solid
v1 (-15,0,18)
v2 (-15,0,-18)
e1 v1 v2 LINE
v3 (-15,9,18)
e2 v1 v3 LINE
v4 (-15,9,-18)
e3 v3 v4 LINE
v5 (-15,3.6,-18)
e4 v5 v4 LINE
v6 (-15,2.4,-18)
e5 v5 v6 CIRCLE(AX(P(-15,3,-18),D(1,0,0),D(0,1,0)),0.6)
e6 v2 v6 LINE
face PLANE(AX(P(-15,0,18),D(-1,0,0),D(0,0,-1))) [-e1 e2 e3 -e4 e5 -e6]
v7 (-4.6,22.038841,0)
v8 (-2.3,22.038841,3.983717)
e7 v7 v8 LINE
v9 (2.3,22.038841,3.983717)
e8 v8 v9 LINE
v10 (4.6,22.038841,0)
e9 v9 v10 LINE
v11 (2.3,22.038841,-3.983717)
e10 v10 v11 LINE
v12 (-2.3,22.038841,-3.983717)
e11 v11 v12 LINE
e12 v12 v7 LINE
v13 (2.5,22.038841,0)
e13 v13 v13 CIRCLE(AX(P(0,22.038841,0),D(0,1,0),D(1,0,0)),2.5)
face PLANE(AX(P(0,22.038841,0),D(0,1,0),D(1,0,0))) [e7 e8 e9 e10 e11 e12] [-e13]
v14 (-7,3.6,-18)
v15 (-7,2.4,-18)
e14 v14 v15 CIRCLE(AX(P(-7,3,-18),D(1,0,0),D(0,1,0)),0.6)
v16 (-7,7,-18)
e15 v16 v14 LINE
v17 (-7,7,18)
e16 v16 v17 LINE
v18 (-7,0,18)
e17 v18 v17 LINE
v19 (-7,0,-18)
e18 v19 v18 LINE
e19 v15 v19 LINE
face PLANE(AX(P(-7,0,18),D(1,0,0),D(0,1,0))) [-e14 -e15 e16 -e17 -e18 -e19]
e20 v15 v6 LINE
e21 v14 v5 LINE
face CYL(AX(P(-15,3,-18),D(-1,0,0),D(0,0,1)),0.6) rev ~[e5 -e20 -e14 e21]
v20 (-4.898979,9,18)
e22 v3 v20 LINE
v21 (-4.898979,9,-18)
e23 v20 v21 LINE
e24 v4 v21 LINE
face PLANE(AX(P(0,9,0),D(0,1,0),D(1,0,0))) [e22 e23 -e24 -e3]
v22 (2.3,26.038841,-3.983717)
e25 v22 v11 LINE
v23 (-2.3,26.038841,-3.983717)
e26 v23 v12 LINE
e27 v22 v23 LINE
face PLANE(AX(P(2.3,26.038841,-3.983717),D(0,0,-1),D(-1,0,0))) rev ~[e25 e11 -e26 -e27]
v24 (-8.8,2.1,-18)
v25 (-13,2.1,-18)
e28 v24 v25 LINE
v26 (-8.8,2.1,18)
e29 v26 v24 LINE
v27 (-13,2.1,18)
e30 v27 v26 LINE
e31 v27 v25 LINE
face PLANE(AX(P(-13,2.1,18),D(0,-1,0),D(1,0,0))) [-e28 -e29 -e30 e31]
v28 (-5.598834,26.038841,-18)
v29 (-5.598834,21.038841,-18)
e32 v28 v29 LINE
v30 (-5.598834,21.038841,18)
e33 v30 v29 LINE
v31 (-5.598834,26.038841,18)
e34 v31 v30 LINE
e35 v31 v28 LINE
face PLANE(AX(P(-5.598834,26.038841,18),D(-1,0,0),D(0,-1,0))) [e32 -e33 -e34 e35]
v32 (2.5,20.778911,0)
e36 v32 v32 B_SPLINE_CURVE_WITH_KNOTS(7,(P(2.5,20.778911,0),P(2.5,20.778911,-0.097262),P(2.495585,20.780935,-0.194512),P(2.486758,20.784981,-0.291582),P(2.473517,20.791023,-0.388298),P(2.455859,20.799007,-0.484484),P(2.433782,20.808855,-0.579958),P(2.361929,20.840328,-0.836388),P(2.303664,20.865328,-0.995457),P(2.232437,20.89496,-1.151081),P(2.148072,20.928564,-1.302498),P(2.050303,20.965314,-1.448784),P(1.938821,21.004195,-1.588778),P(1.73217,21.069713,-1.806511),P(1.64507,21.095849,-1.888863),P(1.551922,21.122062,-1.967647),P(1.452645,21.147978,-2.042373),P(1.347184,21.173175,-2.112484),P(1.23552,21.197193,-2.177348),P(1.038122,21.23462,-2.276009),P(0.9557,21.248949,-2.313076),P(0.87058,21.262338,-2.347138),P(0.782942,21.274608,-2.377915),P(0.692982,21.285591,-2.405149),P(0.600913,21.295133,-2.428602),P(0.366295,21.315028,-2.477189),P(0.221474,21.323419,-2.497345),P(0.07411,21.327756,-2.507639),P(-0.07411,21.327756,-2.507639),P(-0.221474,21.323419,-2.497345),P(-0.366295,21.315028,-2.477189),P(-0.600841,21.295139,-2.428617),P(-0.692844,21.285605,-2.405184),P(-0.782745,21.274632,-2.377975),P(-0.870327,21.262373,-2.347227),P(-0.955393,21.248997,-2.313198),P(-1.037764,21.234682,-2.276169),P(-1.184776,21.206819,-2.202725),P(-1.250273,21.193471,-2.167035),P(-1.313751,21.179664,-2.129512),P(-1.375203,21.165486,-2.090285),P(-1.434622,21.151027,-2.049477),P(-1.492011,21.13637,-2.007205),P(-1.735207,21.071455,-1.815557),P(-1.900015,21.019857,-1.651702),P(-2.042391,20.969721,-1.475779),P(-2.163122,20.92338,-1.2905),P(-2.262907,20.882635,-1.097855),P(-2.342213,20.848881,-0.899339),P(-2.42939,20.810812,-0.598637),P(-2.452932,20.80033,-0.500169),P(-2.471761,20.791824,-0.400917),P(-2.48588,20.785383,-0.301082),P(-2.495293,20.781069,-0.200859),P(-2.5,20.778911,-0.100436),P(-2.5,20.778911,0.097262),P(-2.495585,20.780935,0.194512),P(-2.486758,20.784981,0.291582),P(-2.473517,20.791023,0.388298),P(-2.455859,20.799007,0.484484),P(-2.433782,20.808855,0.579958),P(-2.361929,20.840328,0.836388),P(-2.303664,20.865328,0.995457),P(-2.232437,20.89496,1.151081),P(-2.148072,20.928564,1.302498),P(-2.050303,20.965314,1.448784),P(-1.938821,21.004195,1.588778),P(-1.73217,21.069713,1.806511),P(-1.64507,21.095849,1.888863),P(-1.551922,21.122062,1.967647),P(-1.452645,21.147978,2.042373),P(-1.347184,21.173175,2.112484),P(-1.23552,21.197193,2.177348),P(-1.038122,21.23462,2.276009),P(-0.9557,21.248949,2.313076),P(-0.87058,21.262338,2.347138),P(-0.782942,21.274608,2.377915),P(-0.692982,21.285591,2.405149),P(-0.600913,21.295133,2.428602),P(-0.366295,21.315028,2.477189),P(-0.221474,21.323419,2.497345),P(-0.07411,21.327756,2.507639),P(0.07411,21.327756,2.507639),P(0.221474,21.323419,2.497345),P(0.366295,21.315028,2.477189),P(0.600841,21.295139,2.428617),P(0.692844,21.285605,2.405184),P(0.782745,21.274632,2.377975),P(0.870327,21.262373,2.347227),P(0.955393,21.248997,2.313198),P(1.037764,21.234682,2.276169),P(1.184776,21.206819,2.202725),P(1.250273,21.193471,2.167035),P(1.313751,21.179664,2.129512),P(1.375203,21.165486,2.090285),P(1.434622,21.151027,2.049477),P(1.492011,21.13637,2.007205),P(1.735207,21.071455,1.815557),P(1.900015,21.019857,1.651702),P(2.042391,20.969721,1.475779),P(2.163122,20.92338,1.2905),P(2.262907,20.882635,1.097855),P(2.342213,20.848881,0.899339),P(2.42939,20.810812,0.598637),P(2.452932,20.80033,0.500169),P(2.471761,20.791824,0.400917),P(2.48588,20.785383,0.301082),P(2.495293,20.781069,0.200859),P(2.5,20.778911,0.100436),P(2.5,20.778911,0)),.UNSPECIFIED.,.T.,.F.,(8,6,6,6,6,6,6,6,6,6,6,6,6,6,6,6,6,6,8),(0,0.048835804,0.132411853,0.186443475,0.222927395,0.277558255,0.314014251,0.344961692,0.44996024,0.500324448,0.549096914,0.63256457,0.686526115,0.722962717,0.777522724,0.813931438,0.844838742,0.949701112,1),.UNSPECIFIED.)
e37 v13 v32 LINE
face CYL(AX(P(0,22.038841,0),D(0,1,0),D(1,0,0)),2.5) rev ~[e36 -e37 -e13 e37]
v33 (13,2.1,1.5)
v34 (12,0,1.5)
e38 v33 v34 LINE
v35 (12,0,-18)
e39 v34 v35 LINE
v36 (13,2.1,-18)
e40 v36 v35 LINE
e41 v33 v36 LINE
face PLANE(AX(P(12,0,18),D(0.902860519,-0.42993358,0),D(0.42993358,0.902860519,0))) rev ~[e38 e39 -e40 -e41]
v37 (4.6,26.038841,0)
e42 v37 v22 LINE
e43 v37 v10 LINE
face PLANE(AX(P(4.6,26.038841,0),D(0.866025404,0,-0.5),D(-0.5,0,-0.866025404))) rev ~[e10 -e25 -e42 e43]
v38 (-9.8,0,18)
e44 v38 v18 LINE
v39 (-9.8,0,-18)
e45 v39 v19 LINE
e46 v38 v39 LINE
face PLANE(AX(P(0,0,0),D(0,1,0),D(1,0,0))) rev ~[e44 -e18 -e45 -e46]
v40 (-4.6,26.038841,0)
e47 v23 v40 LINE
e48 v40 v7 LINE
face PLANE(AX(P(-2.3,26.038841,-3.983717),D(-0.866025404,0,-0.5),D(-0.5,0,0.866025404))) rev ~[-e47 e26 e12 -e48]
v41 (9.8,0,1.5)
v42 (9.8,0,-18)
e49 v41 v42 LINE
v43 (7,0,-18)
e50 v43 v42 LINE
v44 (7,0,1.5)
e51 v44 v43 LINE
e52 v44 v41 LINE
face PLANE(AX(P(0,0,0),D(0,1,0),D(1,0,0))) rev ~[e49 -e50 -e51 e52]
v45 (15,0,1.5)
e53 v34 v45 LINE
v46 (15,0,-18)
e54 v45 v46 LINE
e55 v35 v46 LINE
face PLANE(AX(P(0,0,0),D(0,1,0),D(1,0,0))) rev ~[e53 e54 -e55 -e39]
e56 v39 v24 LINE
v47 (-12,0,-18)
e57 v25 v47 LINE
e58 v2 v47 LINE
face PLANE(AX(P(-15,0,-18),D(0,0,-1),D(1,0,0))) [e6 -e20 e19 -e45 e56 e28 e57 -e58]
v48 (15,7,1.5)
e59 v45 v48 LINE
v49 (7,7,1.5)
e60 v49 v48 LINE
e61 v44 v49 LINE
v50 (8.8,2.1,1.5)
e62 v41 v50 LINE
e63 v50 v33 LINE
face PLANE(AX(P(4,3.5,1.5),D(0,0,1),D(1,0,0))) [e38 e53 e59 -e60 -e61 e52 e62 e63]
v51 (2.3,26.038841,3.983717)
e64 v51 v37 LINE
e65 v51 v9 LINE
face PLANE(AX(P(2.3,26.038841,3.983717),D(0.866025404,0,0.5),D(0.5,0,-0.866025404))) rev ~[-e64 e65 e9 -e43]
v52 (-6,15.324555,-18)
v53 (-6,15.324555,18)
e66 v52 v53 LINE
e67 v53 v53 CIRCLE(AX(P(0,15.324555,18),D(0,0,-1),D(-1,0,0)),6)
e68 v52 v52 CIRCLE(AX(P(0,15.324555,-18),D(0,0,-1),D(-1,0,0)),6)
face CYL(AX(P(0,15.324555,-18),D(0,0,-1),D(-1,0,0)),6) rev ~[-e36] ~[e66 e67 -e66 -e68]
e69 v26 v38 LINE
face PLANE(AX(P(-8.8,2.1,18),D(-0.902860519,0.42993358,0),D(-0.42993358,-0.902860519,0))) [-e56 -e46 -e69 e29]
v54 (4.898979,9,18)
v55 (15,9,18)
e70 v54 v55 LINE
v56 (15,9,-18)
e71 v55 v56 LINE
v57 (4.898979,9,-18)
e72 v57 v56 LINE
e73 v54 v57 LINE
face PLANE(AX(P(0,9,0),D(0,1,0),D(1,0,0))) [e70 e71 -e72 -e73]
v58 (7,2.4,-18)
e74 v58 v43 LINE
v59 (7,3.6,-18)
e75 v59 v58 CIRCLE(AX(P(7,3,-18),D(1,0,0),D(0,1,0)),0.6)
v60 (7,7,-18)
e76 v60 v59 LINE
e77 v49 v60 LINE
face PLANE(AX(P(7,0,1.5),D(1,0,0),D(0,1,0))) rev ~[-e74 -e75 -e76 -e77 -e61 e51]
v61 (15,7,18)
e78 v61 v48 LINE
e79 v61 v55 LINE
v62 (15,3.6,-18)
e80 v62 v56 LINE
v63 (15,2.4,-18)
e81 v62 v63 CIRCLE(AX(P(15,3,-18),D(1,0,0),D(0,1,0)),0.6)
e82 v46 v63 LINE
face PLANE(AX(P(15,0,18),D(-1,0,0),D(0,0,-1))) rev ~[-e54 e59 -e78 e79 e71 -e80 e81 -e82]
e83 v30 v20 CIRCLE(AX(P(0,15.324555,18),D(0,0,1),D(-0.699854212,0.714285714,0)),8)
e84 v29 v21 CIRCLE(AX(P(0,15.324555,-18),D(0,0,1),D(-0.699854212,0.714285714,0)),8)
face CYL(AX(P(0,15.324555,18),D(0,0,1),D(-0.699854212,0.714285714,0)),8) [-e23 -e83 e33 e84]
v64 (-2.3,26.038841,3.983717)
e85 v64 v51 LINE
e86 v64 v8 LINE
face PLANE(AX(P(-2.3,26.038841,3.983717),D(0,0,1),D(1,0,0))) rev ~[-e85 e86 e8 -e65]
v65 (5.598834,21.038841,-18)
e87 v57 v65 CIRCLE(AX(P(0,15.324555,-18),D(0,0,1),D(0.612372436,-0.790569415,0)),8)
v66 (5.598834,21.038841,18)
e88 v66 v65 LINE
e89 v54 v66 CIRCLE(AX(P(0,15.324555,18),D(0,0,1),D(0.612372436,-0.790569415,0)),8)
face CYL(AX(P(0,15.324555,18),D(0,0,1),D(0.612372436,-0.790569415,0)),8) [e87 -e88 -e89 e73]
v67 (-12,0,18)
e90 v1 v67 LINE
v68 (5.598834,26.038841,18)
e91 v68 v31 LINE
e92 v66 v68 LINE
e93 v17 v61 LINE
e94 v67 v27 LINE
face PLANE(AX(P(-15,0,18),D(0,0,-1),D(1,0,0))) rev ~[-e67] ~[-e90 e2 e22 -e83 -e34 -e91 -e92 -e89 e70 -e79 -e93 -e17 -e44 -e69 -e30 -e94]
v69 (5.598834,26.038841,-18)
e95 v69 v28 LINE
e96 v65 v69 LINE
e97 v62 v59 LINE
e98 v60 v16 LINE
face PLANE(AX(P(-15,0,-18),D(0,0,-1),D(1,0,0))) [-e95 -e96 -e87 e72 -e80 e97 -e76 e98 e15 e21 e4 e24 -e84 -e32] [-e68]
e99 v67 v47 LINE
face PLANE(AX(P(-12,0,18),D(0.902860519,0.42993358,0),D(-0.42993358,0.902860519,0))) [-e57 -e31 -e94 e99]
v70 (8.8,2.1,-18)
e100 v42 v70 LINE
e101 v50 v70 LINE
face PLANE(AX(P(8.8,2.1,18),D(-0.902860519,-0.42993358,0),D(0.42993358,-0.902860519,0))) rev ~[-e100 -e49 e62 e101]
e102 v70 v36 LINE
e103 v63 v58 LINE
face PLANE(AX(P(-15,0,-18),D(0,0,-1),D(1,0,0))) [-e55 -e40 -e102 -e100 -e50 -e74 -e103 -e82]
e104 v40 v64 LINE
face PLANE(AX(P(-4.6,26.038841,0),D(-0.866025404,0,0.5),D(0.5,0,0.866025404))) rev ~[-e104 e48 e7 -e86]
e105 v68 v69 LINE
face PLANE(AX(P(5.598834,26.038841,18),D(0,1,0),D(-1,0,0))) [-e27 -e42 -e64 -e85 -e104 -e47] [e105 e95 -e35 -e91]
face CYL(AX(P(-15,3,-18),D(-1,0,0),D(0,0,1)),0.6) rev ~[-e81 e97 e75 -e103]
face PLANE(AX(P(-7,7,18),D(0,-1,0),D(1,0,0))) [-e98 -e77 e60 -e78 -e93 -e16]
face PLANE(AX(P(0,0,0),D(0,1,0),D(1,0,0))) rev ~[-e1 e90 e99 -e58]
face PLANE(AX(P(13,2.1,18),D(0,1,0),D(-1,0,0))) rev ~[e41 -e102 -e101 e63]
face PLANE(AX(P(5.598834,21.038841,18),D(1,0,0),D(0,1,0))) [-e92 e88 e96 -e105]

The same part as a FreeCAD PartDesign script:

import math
import FreeCAD as App
import Part
import Sketcher
from FreeCAD import Vector
Q = App.Units.Quantity

doc = App.newDocument("Part")
body = doc.addObject("PartDesign::Body", "Body")

# Sketch on XZ plane
sketch1 = doc.addObject("Sketcher::SketchObject", "Sketch")
body.addObject(sketch1)
sketch1.AttachmentSupport = (doc.XZ_Plane, [""])
sketch1.MapMode = "FlatFace"
sketch1.addGeometry([
    Part.LineSegment(Vector(-15, -18, 0), Vector(-15, 18, 0)),
    Part.LineSegment(Vector(-15, 18, 0), Vector(15, 18, 0)),
    Part.LineSegment(Vector(15, 18, 0), Vector(15, -18, 0)),
    Part.LineSegment(Vector(15, -18, 0), Vector(-15, -18, 0)),
], False)
sketch1.addConstraint([
    Sketcher.Constraint("Coincident", 0, 2, 1, 1),
    Sketcher.Constraint("Coincident", 1, 2, 2, 1),
    Sketcher.Constraint("Coincident", 2, 2, 3, 1),
    Sketcher.Constraint("Coincident", 3, 2, 0, 1),
    Sketcher.Constraint("Vertical", 0),
    Sketcher.Constraint("Horizontal", 1),
    Sketcher.Constraint("Vertical", 2),
    Sketcher.Constraint("Horizontal", 3),
    Sketcher.Constraint("Symmetric", 0, 2, 2, 2, -1, 1),
    Sketcher.Constraint("DistanceX", 1, 1, 1, 2, 30.0),
    Sketcher.Constraint("DistanceY", 0, 1, 0, 2, 36.0),
])
pad1 = doc.addObject("PartDesign::Pad", "Pad")
body.addObject(pad1)
pad1.Profile = sketch1
pad1.Length = 9
pad1.Reversed = True

# Sketch on XY plane
sketch2 = doc.addObject("Sketcher::SketchObject", "Sketch001")
body.addObject(sketch2)
sketch2.AttachmentSupport = (doc.XY_Plane, [""])
sketch2.MapMode = "FlatFace"
sketch2.AttachmentOffset = App.Placement(Vector(0, 0, 18), App.Rotation())
sketch2.addGeometry([
    Part.LineSegment(Vector(-13, 2.1, 0), Vector(-12, 0, 0)),  # 0
    Part.LineSegment(Vector(-12, 0, 0), Vector(-9.8, 0, 0)),  # 1
    Part.LineSegment(Vector(-9.8, 0, 0), Vector(-8.8, 2.1, 0)),  # 2
    Part.LineSegment(Vector(-8.8, 2.1, 0), Vector(-13, 2.1, 0)),  # 3
    Part.LineSegment(Vector(12, 0, 0), Vector(13, 2.1, 0)),  # 4
    Part.LineSegment(Vector(13, 2.1, 0), Vector(8.8, 2.1, 0)),  # 5
    Part.LineSegment(Vector(8.8, 2.1, 0), Vector(9.8, 0, 0)),  # 6
    Part.LineSegment(Vector(9.8, 0, 0), Vector(12, 0, 0)),  # 7
], False)
sketch2.addConstraint([
    Sketcher.Constraint("Coincident", 0, 2, 1, 1),
    Sketcher.Constraint("Coincident", 1, 2, 2, 1),
    Sketcher.Constraint("Coincident", 2, 2, 3, 1),
    Sketcher.Constraint("Coincident", 3, 2, 0, 1),
    Sketcher.Constraint("Coincident", 4, 2, 5, 1),
    Sketcher.Constraint("Coincident", 5, 2, 6, 1),
    Sketcher.Constraint("Coincident", 6, 2, 7, 1),
    Sketcher.Constraint("Coincident", 7, 2, 4, 1),
    Sketcher.Constraint("Horizontal", 1),
    Sketcher.Constraint("Horizontal", 3),
    Sketcher.Constraint("Horizontal", 5),
    Sketcher.Constraint("Horizontal", 7),
    Sketcher.Constraint("Symmetric", 1, 2, 6, 2, -1, 1),
    Sketcher.Constraint("Symmetric", 3, 2, 4, 2, -2),
    Sketcher.Constraint("Symmetric", 0, 2, 7, 2, -2),
    Sketcher.Constraint("Parallel", 2, 4),
    Sketcher.Constraint("Parallel", 0, 6),
    Sketcher.Constraint("DistanceX", 1, 1, 1, 2, 2.2),
    Sketcher.Constraint("DistanceX", 3, 2, 3, 1, 4.2),
    Sketcher.Constraint("DistanceX", 0, 2, -1, 1, 12.0),
    Sketcher.Constraint("DistanceY", -1, 1, 2, 2, 2.1),
])
pocket1 = doc.addObject("PartDesign::Pocket", "Pocket")
body.addObject(pocket1)
pocket1.Profile = sketch2
pocket1.Type = "ThroughAll"

# Sketch on XY plane
sketch3 = doc.addObject("Sketcher::SketchObject", "Sketch002")
body.addObject(sketch3)
sketch3.AttachmentSupport = (doc.XY_Plane, [""])
sketch3.MapMode = "FlatFace"
sketch3.AttachmentOffset = App.Placement(Vector(0, 0, 18), App.Rotation())
sketch3.addGeometry([
    Part.LineSegment(Vector(-7, 7, 0), Vector(-7, 0, 0)),
    Part.LineSegment(Vector(-7, 0, 0), Vector(15, 0, 0)),
    Part.LineSegment(Vector(15, 0, 0), Vector(15, 7, 0)),
    Part.LineSegment(Vector(15, 7, 0), Vector(-7, 7, 0)),
], False)
sketch3.addConstraint([
    Sketcher.Constraint("Coincident", 0, 2, 1, 1),
    Sketcher.Constraint("Coincident", 1, 2, 2, 1),
    Sketcher.Constraint("Coincident", 2, 2, 3, 1),
    Sketcher.Constraint("Coincident", 3, 2, 0, 1),
    Sketcher.Constraint("Vertical", 0),
    Sketcher.Constraint("Horizontal", 1),
    Sketcher.Constraint("Vertical", 2),
    Sketcher.Constraint("Horizontal", 3),
    Sketcher.Constraint("PointOnObject", 0, 2, -1),
    Sketcher.Constraint("DistanceX", 1, 1, 1, 2, 22.0),
    Sketcher.Constraint("DistanceY", 0, 2, 0, 1, 7.0),
    Sketcher.Constraint("DistanceX", 0, 2, -1, 1, 7.0),
])
pocket2 = doc.addObject("PartDesign::Pocket", "Pocket001")
body.addObject(pocket2)
pocket2.Profile = sketch3
pocket2.Length = 16.5

# Sketch on XY plane
sketch4 = doc.addObject("Sketcher::SketchObject", "Sketch003")
body.addObject(sketch4)
sketch4.AttachmentSupport = (doc.XY_Plane, [""])
sketch4.MapMode = "FlatFace"
sketch4.AttachmentOffset = App.Placement(Vector(0, 0, 1.5), App.Rotation())
sketch4.addGeometry([
    Part.LineSegment(Vector(-7, 7, 0), Vector(-7, 0, 0)),
    Part.LineSegment(Vector(-7, 0, 0), Vector(7, 0, 0)),
    Part.LineSegment(Vector(7, 0, 0), Vector(7, 7, 0)),
    Part.LineSegment(Vector(7, 7, 0), Vector(-7, 7, 0)),
], False)
sketch4.addConstraint([
    Sketcher.Constraint("Coincident", 0, 2, 1, 1),
    Sketcher.Constraint("Coincident", 1, 2, 2, 1),
    Sketcher.Constraint("Coincident", 2, 2, 3, 1),
    Sketcher.Constraint("Coincident", 3, 2, 0, 1),
    Sketcher.Constraint("Vertical", 0),
    Sketcher.Constraint("Horizontal", 1),
    Sketcher.Constraint("Vertical", 2),
    Sketcher.Constraint("Horizontal", 3),
    Sketcher.Constraint("Symmetric", 0, 2, 1, 2, -1, 1),
    Sketcher.Constraint("DistanceX", 1, 1, 1, 2, 14.0),
    Sketcher.Constraint("DistanceY", 0, 2, 0, 1, 7.0),
])
pocket3 = doc.addObject("PartDesign::Pocket", "Pocket002")
body.addObject(pocket3)
pocket3.Profile = sketch4
pocket3.Type = "ThroughAll"

# Sketch on XY plane
sketch5 = doc.addObject("Sketcher::SketchObject", "Sketch004")
body.addObject(sketch5)
sketch5.AttachmentSupport = (doc.XY_Plane, [""])
sketch5.MapMode = "FlatFace"
sketch5.AttachmentOffset = App.Placement(Vector(0, 0, 18), App.Rotation())
sketch5.addGeometry([
    Part.LineSegment(Vector(-5, 9, 0), Vector(5, 9, 0)),  # 0
    Part.ArcOfCircle(Part.Circle(Vector(0, 15, 0), Vector(0, 0, 1), 8), math.radians(-52), math.radians(46)),  # 1
    Part.LineSegment(Vector(6, 21, 0), Vector(6, 26, 0)),  # 2
    Part.LineSegment(Vector(6, 26, 0), Vector(-6, 26, 0)),  # 3
    Part.LineSegment(Vector(-6, 26, 0), Vector(-6, 21, 0)),  # 4
    Part.ArcOfCircle(Part.Circle(Vector(0, 15, 0), Vector(0, 0, 1), 8), math.radians(134), math.radians(232)),  # 5
], False)
sketch5.addConstraint([
    Sketcher.Constraint("Coincident", 0, 2, 1, 1),
    Sketcher.Constraint("Coincident", 1, 2, 2, 1),
    Sketcher.Constraint("Coincident", 2, 2, 3, 1),
    Sketcher.Constraint("Coincident", 3, 2, 4, 1),
    Sketcher.Constraint("Coincident", 4, 2, 5, 1),
    Sketcher.Constraint("Coincident", 5, 2, 0, 1),
    Sketcher.Constraint("Horizontal", 0),
    Sketcher.Constraint("Vertical", 2),
    Sketcher.Constraint("Horizontal", 3),
    Sketcher.Constraint("Vertical", 4),
    Sketcher.Constraint("Coincident", 5, 3, 1, 3),
    Sketcher.Constraint("Equal", 1, 5),
    Sketcher.Constraint("Symmetric", 1, 2, 4, 2, -2),
    Sketcher.Constraint("Radius", 1, 8.0),
    Sketcher.Constraint("DistanceY", 2, 1, 2, 2, 5.0),
    Sketcher.Constraint("DistanceY", -1, 1, 0, 2, 9.0),
    Sketcher.Constraint("DistanceX", 0, 1, 0, 2, 9.797959),
    Sketcher.Constraint("DistanceX", 3, 2, 3, 1, 11.197667),
])
pad2 = doc.addObject("PartDesign::Pad", "Pad001")
body.addObject(pad2)
pad2.Profile = sketch5
pad2.Length = 36
pad2.Reversed = True

# Sketch on XY plane
sketch6 = doc.addObject("Sketcher::SketchObject", "Sketch005")
body.addObject(sketch6)
sketch6.AttachmentSupport = (doc.XY_Plane, [""])
sketch6.MapMode = "FlatFace"
sketch6.AttachmentOffset = App.Placement(Vector(0, 0, -18), App.Rotation())
sketch6.addGeometry(Part.Circle(Vector(0, 15, 0), Vector(0, 0, 1), 6), False)
sketch6.addConstraint([
    Sketcher.Constraint("PointOnObject", 0, 3, -2),
    Sketcher.Constraint("Diameter", 0, 12.0),
    Sketcher.Constraint("DistanceY", -1, 1, 0, 3, 15.324555),
])
pocket4 = doc.addObject("PartDesign::Pocket", "Pocket003")
body.addObject(pocket4)
pocket4.Profile = sketch6
pocket4.Type = "ThroughAll"
pocket4.Reversed = True

# Sketch on XZ plane
sketch7 = doc.addObject("Sketcher::SketchObject", "Sketch006")
body.addObject(sketch7)
sketch7.AttachmentSupport = (doc.XZ_Plane, [""])
sketch7.MapMode = "FlatFace"
sketch7.AttachmentOffset = App.Placement(Vector(0, 0, -26.038841), App.Rotation())
sketch7.addGeometry([
    Part.LineSegment(Vector(2.3, 4, 0), Vector(4.6, 0, 0)),  # 0
    Part.LineSegment(Vector(4.6, 0, 0), Vector(2.3, -4, 0)),  # 1
    Part.LineSegment(Vector(2.3, -4, 0), Vector(-2.3, -4, 0)),  # 2
    Part.LineSegment(Vector(-2.3, -4, 0), Vector(-4.6, 0, 0)),  # 3
    Part.LineSegment(Vector(-4.6, 0, 0), Vector(-2.3, 4, 0)),  # 4
    Part.LineSegment(Vector(-2.3, 4, 0), Vector(2.3, 4, 0)),  # 5
], False)
sketch7.addConstraint([
    Sketcher.Constraint("Coincident", 0, 2, 1, 1),
    Sketcher.Constraint("Coincident", 1, 2, 2, 1),
    Sketcher.Constraint("Coincident", 2, 2, 3, 1),
    Sketcher.Constraint("Coincident", 3, 2, 4, 1),
    Sketcher.Constraint("Coincident", 4, 2, 5, 1),
    Sketcher.Constraint("Coincident", 5, 2, 0, 1),
    Sketcher.Constraint("Horizontal", 2),
    Sketcher.Constraint("Horizontal", 5),
    Sketcher.Constraint("Symmetric", 0, 2, 3, 2, -1, 1),
    Sketcher.Constraint("Symmetric", 1, 2, 4, 2, -1, 1),
    Sketcher.Constraint("PointOnObject", 0, 2, -1),
    Sketcher.Constraint("Parallel", 0, 3),
    Sketcher.Constraint("Vertical", 2, 2, 4, 2),
    Sketcher.Constraint("Angle", 0, Q("-60 deg")),
    Sketcher.Constraint("DistanceX", 2, 2, 2, 1, 4.6),
    Sketcher.Constraint("Distance", 0, 4.6),
])
pocket5 = doc.addObject("PartDesign::Pocket", "Pocket004")
body.addObject(pocket5)
pocket5.Profile = sketch7
pocket5.Length = 4
pocket5.Reversed = True

# Sketch on XZ plane
sketch8 = doc.addObject("Sketcher::SketchObject", "Sketch007")
body.addObject(sketch8)
sketch8.AttachmentSupport = (doc.XZ_Plane, [""])
sketch8.MapMode = "FlatFace"
sketch8.AttachmentOffset = App.Placement(Vector(0, 0, -22.038841), App.Rotation())
sketch8.addGeometry(Part.Circle(Vector(0, 0, 0), Vector(0, 0, 1), 2.5), False)
sketch8.addConstraint([
    Sketcher.Constraint("Coincident", 0, 3, -1, 1),
    Sketcher.Constraint("Diameter", 0, 5.0),
])
pocket6 = doc.addObject("PartDesign::Pocket", "Pocket005")
body.addObject(pocket6)
pocket6.Profile = sketch8
pocket6.Length = 3
pocket6.Reversed = True

# Sketch on YZ plane
sketch9 = doc.addObject("Sketcher::SketchObject", "Sketch008")
body.addObject(sketch9)
sketch9.AttachmentSupport = (doc.YZ_Plane, [""])
sketch9.MapMode = "FlatFace"
sketch9.AttachmentOffset = App.Placement(Vector(0, 0, -15), App.Rotation())
sketch9.addGeometry(Part.Circle(Vector(3, -18, 0), Vector(0, 0, 1), 0.6), False)
sketch9.addConstraint([
    Sketcher.Constraint("Diameter", 0, 1.2),
    Sketcher.Constraint("DistanceX", -1, 1, 0, 3, 3.0),
    Sketcher.Constraint("DistanceY", 0, 3, -1, 1, 18.0),
])
pocket7 = doc.addObject("PartDesign::Pocket", "Pocket006")
body.addObject(pocket7)
pocket7.Profile = sketch9
pocket7.Type = "ThroughAll"
pocket7.Reversed = True

doc.recompute()
